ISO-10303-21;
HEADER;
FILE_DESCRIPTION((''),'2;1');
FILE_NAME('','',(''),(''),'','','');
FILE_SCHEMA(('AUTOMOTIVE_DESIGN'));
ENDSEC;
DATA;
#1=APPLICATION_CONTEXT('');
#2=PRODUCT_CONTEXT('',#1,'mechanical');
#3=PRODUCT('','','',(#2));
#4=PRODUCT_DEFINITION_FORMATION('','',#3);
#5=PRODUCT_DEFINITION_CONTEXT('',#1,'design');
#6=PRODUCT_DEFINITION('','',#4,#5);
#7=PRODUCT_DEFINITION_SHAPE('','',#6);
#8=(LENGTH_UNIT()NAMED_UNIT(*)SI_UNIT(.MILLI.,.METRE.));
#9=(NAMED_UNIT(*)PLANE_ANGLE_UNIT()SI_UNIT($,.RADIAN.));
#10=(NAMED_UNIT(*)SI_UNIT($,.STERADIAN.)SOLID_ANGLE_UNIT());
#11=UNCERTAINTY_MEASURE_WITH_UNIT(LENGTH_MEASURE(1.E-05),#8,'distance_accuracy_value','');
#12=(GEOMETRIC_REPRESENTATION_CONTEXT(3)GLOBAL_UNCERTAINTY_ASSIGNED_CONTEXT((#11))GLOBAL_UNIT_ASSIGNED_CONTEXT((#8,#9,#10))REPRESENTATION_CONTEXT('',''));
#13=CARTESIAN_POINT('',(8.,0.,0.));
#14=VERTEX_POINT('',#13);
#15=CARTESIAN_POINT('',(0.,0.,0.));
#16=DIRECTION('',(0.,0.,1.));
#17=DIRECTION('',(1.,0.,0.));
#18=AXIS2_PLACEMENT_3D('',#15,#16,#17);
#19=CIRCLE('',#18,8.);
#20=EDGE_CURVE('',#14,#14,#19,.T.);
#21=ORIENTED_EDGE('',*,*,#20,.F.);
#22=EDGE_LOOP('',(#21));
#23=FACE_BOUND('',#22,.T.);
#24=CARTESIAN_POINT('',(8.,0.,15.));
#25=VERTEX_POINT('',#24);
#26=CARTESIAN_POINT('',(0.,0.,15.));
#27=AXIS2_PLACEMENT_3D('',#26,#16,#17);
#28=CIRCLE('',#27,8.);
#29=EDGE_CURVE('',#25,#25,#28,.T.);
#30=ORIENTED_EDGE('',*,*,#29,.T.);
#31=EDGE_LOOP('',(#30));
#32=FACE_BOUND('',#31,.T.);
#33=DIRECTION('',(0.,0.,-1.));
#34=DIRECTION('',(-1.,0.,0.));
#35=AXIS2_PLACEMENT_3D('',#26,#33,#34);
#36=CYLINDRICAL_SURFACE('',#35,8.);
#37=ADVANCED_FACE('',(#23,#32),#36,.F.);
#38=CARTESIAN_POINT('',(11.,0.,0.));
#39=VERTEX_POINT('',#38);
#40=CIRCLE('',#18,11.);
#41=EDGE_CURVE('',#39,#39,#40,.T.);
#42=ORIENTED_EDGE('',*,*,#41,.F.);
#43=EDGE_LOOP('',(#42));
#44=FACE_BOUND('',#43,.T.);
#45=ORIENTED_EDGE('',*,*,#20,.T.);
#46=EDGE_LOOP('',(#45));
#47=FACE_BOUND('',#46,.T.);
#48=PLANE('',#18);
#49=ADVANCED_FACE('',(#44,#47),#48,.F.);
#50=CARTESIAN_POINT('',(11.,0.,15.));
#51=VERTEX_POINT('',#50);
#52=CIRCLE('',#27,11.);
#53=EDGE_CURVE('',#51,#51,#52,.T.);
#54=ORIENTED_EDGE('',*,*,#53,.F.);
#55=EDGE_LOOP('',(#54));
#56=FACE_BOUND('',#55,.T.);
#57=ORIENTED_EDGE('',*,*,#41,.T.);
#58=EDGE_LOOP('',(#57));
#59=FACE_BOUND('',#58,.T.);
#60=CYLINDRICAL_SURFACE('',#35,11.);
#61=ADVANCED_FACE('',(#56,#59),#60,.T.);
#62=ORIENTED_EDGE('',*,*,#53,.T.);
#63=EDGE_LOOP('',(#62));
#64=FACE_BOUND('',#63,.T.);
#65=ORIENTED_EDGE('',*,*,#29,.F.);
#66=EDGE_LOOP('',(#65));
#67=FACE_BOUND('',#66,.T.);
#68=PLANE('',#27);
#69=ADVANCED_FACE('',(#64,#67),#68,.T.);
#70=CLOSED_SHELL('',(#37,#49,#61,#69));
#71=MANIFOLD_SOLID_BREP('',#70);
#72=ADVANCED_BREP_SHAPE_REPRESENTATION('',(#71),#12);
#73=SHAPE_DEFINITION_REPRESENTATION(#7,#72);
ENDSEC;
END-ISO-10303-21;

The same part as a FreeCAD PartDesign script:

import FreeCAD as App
import Part
import Sketcher
from FreeCAD import Vector

doc = App.newDocument("Part")
body = doc.addObject("PartDesign::Body", "Body")

# Sketch on XY plane
sketch1 = body.newObject("Sketcher::SketchObject", "Sketch")
sketch1.AttachmentSupport = (doc.getObject("XY_Plane"), [""])
sketch1.MapMode = "FlatFace"
sketch1.addGeometry(Part.Circle(Vector(0, 0, 0), Vector(0, 0, 1), 11), False)
sketch1.addGeometry(Part.Circle(Vector(0, 0, 0), Vector(0, 0, 1), 8), False)
sketch1.addConstraint(Sketcher.Constraint("Coincident", 0, 3, -1, 1))
sketch1.addConstraint(Sketcher.Constraint("Coincident", 1, 3, -1, 1))
sketch1.addConstraint(Sketcher.Constraint("Diameter", 0, 22.0))
sketch1.addConstraint(Sketcher.Constraint("Diameter", 1, 16.0))
pad1 = body.newObject("PartDesign::Pad", "Pad")
pad1.Profile = sketch1
pad1.Length = 15

doc.recompute()
